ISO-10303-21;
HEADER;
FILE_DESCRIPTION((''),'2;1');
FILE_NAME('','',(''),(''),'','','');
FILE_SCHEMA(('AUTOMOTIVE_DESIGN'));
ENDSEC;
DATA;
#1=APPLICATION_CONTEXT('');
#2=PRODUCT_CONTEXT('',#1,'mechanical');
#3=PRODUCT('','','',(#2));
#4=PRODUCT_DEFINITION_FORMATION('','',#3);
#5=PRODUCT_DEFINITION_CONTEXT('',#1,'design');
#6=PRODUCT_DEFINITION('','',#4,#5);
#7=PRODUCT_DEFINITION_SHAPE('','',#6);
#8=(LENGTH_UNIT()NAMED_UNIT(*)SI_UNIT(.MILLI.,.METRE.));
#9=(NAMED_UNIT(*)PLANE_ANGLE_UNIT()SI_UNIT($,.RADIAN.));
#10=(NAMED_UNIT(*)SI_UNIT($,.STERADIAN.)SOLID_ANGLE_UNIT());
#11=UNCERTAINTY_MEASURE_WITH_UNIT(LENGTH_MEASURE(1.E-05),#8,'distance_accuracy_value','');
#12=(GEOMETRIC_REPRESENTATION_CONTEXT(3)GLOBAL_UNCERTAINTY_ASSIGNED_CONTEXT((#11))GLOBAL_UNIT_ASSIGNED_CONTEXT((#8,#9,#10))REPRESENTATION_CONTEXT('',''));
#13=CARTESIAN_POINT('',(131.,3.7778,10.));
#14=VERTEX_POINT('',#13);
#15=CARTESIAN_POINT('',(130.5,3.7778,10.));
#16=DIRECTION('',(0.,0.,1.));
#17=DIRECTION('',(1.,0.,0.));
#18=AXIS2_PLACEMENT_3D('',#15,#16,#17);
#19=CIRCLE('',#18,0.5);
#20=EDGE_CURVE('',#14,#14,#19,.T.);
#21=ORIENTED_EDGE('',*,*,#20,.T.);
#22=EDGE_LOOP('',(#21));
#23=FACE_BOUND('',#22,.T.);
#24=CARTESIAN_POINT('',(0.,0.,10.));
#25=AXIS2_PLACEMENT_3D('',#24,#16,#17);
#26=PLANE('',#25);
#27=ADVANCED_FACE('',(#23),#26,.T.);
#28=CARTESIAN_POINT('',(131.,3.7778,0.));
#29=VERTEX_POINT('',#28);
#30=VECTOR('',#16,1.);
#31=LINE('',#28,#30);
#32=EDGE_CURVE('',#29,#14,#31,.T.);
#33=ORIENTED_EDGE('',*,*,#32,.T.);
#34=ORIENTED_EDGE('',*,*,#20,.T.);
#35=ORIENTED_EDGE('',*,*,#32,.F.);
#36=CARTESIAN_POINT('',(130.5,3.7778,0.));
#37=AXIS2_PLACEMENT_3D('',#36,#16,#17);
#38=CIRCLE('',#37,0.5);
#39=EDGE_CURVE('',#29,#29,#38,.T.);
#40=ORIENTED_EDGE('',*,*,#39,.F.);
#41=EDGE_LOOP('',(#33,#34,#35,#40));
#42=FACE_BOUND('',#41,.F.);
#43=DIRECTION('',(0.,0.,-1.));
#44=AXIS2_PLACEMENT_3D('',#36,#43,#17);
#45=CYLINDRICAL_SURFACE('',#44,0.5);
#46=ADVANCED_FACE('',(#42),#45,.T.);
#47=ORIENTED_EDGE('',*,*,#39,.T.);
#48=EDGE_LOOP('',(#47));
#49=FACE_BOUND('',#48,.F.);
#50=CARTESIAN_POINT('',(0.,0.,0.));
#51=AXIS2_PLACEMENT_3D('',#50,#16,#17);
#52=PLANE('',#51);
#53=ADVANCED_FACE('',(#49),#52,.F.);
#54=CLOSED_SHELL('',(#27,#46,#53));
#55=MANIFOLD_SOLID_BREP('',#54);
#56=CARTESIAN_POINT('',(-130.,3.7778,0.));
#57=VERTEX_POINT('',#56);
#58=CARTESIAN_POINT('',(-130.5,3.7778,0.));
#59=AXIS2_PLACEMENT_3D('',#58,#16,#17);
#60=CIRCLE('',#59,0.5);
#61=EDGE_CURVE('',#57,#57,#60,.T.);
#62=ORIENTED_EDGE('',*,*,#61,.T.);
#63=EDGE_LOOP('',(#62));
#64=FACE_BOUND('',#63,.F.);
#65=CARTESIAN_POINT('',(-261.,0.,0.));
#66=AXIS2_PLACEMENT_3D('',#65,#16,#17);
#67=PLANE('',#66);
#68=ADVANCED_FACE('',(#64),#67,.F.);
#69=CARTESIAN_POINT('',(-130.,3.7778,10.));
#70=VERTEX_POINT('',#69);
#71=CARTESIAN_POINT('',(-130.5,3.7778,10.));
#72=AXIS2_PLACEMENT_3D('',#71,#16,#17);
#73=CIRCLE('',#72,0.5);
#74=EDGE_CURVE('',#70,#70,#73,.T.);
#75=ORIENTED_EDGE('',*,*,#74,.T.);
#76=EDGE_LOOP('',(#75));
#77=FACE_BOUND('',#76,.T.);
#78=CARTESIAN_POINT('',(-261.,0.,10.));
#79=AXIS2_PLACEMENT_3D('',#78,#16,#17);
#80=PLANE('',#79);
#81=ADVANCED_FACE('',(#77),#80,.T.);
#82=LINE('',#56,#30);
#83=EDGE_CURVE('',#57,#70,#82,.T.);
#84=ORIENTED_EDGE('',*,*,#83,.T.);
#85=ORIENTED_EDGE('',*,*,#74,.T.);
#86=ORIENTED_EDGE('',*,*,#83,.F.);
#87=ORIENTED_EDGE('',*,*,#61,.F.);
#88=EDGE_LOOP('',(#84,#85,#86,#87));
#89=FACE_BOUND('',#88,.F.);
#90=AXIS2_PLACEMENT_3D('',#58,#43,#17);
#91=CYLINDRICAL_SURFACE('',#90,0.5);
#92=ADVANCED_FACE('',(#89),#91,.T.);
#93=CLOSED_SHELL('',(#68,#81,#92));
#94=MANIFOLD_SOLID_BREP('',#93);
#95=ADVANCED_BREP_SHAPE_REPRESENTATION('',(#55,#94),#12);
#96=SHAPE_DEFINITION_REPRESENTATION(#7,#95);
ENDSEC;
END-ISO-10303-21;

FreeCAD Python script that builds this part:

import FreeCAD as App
import Part
import Sketcher

V = App.Vector

doc = App.newDocument("Part")
body = doc.addObject("PartDesign::Body", "Body")
body.AllowCompound = True

sketch1 = body.newObject("Sketcher::SketchObject", "Sketch")
sketch1.AttachmentSupport = (doc.getObject("XY_Plane"), [""])
sketch1.MapMode = "FlatFace"
sketch1.addGeometry(Part.Circle(V(130.5, 3.8, 0), V(0, 0, 1), 0.5), False)
sketch1.addConstraint(Sketcher.Constraint("Diameter", 0, 1.0))
sketch1.addConstraint(Sketcher.Constraint("DistanceX", -1, 1, 0, 3, 130.5))
sketch1.addConstraint(Sketcher.Constraint("DistanceY", -1, 1, 0, 3, 3.7778))
pad1 = body.newObject("PartDesign::Pad", "Pad")
pad1.Profile = sketch1
pad1.Length = 10
doc.recompute()

linearpattern = body.newObject("PartDesign::LinearPattern", "LinearPattern")
linearpattern.Originals = [pad1]
linearpattern.Direction = (doc.getObject("X_Axis"), [""])
linearpattern.Mode = "offset"
linearpattern.Offset = 261
linearpattern.Occurrences = 2
linearpattern.Reversed = True
body.Tip = linearpattern

doc.recompute()
